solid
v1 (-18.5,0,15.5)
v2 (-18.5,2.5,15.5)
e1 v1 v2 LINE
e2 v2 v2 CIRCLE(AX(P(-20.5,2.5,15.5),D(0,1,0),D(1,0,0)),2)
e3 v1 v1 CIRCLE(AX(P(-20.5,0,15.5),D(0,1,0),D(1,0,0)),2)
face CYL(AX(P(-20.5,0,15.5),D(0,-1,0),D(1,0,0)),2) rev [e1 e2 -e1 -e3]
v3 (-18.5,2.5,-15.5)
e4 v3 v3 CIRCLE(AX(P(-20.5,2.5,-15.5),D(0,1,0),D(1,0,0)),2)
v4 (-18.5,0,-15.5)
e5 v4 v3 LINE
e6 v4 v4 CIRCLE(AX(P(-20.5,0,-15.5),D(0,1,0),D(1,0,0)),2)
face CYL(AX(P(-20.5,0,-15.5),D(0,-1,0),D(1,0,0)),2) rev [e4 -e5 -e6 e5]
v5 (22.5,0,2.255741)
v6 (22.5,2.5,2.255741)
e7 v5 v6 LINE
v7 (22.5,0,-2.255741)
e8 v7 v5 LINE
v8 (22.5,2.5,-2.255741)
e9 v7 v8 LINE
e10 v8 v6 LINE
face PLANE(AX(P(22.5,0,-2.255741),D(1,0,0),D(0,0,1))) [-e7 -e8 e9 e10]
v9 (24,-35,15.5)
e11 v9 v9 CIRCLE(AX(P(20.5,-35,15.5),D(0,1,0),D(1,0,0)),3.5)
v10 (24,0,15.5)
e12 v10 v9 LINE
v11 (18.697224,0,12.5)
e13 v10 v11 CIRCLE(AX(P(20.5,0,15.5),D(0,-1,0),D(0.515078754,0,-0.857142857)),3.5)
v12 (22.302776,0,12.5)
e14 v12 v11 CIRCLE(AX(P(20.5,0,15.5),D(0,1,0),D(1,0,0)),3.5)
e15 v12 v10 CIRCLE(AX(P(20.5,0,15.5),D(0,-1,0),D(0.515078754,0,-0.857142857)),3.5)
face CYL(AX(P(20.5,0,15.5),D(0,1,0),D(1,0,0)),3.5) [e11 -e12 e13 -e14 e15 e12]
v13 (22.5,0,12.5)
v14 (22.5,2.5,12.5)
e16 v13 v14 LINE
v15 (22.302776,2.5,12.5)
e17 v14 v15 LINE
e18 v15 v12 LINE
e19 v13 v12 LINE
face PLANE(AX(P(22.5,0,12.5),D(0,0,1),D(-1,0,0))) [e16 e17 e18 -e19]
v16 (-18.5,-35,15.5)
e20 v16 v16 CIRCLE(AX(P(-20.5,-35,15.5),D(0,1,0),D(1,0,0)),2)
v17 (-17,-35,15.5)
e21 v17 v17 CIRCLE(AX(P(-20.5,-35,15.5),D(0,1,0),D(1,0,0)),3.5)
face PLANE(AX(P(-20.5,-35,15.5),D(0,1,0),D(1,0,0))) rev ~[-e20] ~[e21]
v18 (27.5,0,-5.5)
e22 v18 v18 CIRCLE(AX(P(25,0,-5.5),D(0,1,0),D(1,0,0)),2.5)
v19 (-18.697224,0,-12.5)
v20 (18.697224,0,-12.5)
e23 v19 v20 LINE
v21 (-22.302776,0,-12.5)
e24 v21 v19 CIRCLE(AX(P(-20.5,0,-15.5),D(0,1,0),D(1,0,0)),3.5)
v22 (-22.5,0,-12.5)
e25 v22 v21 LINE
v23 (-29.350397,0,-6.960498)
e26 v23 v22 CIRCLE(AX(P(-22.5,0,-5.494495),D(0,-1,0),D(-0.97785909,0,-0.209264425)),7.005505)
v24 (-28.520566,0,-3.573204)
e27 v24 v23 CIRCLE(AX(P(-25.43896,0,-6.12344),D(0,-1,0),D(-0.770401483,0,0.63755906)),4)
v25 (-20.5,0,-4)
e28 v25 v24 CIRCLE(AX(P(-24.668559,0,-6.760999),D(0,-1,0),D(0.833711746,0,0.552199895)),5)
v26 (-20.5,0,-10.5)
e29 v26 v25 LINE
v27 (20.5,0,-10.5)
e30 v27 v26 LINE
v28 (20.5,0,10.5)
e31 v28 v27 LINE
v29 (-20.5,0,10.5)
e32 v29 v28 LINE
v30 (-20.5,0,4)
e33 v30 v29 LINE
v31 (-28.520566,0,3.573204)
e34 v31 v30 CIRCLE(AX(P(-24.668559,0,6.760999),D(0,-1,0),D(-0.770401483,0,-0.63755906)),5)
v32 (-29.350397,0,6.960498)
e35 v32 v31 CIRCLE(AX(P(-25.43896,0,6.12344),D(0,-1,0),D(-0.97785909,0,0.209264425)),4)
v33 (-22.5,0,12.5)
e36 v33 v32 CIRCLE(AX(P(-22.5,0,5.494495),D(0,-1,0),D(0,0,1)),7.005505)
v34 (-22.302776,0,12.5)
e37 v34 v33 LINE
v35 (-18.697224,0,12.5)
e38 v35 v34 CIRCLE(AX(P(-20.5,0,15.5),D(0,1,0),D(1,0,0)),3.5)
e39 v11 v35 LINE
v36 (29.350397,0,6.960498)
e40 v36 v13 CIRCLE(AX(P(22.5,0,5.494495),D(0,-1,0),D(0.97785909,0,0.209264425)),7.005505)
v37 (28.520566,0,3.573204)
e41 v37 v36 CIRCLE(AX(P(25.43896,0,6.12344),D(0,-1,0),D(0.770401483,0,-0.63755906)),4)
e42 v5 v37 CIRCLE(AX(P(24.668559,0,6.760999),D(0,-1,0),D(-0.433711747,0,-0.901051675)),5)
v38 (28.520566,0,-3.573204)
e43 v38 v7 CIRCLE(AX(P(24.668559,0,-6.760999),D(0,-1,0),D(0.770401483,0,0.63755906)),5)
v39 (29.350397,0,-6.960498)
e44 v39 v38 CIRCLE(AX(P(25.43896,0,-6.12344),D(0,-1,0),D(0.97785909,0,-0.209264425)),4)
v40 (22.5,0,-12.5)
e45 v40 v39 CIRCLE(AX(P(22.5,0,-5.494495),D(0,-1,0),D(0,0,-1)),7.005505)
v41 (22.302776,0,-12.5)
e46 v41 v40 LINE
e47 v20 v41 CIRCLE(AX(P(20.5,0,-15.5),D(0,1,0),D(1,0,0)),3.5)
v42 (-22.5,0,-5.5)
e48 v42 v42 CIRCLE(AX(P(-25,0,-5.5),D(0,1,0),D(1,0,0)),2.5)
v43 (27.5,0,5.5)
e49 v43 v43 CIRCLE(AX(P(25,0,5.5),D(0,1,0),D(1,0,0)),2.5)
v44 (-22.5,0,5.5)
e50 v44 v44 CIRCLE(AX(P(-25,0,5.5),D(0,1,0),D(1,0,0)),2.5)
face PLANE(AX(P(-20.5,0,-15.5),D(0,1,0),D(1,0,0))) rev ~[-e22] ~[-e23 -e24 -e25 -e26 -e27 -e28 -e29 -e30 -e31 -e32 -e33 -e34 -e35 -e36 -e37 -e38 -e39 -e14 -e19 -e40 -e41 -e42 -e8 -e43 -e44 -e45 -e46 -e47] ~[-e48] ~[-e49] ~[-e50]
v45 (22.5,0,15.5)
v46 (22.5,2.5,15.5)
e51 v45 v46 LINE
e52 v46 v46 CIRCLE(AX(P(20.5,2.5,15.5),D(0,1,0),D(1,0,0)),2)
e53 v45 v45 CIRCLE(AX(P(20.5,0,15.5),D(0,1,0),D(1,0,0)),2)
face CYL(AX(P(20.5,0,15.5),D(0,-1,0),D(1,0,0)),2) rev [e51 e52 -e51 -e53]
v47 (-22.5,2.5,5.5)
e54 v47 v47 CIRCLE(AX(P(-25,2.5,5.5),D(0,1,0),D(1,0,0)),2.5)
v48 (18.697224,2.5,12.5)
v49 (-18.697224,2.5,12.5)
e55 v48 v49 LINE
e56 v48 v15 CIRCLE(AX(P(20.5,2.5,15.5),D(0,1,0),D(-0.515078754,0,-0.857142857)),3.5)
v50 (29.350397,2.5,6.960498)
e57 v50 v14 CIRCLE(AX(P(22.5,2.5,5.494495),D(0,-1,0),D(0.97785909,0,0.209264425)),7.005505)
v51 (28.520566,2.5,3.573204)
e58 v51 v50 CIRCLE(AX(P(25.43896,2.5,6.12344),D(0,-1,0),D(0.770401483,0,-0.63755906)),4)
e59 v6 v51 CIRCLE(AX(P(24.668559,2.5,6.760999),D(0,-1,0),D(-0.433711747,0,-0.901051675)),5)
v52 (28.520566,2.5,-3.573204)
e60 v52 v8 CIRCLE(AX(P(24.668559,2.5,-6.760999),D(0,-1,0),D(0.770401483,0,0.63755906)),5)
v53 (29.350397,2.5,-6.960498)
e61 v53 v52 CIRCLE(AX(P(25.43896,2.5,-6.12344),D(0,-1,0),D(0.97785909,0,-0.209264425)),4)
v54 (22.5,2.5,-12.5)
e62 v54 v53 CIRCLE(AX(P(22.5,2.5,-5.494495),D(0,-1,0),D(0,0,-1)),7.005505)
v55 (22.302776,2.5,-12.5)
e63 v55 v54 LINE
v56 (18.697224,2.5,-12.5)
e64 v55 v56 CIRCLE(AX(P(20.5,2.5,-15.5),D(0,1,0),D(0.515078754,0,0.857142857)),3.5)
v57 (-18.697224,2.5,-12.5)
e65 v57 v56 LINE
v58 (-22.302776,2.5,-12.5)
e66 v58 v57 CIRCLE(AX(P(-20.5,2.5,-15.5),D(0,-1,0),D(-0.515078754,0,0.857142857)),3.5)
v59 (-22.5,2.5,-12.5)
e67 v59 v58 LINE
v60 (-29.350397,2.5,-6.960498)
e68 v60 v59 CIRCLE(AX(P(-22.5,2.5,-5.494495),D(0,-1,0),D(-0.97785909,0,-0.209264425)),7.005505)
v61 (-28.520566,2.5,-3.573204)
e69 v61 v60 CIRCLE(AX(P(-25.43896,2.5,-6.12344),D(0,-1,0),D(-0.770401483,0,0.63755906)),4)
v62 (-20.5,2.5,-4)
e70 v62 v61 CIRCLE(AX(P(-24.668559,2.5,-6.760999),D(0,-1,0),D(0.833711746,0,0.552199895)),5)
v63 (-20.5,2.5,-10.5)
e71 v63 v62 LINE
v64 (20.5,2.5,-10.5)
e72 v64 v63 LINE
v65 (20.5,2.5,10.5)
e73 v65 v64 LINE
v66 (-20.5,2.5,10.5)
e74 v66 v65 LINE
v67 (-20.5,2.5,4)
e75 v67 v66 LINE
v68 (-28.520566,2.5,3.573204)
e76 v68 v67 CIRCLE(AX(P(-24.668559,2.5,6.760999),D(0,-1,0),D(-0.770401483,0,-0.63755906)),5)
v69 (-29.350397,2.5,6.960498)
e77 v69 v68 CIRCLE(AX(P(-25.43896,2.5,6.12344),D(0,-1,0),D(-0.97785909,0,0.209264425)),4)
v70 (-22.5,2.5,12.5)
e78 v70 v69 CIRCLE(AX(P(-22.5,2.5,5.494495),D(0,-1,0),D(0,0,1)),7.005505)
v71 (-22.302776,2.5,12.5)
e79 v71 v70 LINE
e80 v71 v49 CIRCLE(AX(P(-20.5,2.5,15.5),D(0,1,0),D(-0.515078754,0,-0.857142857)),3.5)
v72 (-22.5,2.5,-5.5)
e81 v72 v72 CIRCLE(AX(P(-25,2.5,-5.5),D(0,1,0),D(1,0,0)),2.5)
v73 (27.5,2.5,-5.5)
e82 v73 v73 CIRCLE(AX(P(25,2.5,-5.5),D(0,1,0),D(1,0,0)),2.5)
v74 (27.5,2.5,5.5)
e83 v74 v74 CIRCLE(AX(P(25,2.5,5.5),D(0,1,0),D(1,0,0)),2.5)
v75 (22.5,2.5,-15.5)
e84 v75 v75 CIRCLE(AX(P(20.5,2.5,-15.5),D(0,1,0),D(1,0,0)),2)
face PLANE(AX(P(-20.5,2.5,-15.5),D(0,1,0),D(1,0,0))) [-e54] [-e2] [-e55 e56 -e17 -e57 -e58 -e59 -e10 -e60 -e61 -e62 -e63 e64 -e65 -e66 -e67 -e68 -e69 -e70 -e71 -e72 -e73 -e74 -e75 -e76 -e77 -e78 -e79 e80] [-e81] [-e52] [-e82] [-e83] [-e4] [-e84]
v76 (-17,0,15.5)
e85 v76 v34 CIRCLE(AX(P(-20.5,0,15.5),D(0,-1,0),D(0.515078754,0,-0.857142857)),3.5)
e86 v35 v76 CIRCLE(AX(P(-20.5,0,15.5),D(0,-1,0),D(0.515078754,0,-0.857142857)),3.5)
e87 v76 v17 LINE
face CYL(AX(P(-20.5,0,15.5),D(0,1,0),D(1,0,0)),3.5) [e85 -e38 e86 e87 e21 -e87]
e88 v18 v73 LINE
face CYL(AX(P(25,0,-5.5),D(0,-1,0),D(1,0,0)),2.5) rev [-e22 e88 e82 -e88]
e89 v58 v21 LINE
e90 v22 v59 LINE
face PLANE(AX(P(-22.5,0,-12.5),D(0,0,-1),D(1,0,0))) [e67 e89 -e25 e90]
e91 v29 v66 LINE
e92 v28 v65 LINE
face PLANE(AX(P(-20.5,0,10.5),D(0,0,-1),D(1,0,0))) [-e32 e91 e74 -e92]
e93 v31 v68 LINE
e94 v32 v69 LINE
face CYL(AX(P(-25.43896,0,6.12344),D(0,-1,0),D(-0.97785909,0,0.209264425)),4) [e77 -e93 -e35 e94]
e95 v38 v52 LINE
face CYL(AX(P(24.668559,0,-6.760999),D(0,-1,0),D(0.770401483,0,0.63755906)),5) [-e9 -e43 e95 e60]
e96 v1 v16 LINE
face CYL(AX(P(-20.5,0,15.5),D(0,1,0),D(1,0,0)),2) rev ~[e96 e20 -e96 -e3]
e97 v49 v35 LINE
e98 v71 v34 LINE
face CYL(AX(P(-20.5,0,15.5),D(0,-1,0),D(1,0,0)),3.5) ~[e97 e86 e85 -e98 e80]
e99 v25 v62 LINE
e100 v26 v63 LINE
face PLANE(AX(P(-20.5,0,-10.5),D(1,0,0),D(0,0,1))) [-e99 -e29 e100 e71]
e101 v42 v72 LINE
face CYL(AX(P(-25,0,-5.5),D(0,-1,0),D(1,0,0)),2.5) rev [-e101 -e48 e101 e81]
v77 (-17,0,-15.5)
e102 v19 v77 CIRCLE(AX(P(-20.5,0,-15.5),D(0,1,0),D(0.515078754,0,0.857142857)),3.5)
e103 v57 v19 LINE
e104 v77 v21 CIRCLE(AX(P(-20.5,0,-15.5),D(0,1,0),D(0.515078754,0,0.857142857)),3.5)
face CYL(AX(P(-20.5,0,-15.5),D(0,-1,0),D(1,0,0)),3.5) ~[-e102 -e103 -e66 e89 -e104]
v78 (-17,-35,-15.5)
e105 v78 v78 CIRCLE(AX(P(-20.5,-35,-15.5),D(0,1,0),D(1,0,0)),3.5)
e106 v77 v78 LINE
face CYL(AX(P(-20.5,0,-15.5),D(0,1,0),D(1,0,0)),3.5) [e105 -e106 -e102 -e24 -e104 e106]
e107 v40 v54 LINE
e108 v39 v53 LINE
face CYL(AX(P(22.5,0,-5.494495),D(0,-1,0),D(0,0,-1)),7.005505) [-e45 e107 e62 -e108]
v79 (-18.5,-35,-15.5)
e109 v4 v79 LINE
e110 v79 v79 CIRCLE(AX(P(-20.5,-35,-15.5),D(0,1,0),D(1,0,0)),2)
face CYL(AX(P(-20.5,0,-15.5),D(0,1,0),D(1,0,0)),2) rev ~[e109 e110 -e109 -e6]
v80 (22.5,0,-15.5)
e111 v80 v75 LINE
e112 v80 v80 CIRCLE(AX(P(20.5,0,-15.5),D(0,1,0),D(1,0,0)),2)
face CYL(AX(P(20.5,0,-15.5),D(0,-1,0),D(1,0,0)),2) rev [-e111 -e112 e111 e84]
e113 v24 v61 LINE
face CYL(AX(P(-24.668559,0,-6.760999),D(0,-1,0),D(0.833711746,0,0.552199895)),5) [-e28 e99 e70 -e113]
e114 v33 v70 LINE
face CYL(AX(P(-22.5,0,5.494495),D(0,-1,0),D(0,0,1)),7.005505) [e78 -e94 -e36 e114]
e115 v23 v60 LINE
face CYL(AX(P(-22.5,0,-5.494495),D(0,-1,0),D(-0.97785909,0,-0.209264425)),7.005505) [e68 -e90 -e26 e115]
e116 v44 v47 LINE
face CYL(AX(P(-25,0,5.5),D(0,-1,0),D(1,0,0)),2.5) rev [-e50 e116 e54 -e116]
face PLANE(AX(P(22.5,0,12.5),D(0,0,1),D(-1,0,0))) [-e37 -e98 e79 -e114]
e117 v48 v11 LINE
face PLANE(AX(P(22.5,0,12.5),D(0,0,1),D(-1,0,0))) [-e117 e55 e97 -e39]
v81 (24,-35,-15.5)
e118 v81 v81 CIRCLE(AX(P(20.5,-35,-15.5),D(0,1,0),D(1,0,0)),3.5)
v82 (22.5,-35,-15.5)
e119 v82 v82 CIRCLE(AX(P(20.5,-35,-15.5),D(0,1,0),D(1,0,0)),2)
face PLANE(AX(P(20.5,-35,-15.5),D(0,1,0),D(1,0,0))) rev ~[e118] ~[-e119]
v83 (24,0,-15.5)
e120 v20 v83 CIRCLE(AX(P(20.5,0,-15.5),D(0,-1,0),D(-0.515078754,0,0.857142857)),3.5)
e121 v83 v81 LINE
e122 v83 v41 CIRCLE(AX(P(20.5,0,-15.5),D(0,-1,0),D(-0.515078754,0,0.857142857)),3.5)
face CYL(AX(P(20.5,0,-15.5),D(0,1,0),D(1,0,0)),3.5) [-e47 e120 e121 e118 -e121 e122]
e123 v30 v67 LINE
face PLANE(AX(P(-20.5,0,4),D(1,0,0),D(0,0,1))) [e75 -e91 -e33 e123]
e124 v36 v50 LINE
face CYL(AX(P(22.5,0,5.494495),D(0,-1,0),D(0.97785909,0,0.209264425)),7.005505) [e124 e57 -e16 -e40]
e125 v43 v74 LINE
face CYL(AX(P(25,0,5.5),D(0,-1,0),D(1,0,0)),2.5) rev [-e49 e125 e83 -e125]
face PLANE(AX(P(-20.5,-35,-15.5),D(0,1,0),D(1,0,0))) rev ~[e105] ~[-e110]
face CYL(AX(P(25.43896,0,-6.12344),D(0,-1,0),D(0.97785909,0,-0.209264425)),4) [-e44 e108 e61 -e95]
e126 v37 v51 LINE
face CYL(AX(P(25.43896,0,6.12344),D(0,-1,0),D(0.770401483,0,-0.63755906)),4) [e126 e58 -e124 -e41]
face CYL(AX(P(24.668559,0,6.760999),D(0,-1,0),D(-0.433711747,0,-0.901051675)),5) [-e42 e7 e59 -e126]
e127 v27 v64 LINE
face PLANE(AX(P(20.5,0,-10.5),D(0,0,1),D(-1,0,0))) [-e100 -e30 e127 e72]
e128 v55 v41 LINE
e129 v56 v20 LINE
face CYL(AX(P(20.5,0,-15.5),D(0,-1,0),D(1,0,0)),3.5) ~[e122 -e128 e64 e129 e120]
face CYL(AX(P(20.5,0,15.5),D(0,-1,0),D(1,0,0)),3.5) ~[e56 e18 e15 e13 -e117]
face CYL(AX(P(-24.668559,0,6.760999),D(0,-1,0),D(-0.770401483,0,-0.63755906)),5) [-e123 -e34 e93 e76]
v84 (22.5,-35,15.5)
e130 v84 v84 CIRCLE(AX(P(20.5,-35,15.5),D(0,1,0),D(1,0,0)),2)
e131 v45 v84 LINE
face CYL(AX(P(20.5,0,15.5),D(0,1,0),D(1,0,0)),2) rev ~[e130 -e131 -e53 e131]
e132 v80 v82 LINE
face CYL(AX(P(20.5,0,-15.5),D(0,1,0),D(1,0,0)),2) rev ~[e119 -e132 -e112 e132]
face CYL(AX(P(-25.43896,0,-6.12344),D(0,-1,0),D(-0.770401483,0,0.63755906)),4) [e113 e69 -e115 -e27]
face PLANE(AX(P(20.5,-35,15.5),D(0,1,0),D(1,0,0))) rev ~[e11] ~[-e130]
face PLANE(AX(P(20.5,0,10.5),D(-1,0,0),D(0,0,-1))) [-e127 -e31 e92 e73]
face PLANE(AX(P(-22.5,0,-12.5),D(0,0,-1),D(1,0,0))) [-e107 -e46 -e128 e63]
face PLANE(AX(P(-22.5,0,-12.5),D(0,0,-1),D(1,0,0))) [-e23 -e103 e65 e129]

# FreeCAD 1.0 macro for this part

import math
import FreeCAD as App
import Part
import Sketcher
Q = App.Units.Quantity

doc = App.newDocument("Part")
body = doc.addObject("PartDesign::Body", "Body")

# Sketch on XZ plane
sketch1 = body.newObject("Sketcher::SketchObject", "Sketch")
sketch1.AttachmentSupport = (doc.getObject("XZ_Plane"), [""])
sketch1.MapMode = "FlatFace"
sketch1.addGeometry([
    Part.LineSegment(App.Vector(-20.5, -10.5, 0), App.Vector(20.5, -10.5, 0)),  # 0
    Part.LineSegment(App.Vector(20.5, -10.5, 0), App.Vector(20.5, 10.5, 0)),  # 1
    Part.LineSegment(App.Vector(20.5, 10.5, 0), App.Vector(-20.5, 10.5, 0)),  # 2
    Part.LineSegment(App.Vector(-20.5, 10.5, 0), App.Vector(-20.5, 4, 0)),  # 3
    Part.ArcOfCircle(Part.Circle(App.Vector(-24.668559, 6.760999, 0), App.Vector(0, 0, 1), 5), math.radians(-140.389955), math.radians(-33.518066)),  # 4
    Part.ArcOfCircle(Part.Circle(App.Vector(-25.43896, 6.12344, 0), App.Vector(0, 0, 1), 4), math.radians(167.920751), math.radians(219.610045)),  # 5
    Part.ArcOfCircle(Part.Circle(App.Vector(-22.5, 5.494495, 0), App.Vector(0, 0, 1), 7.005505), math.radians(90), math.radians(167.920751)),  # 6
    Part.LineSegment(App.Vector(-22.5, 12.5, 0), App.Vector(22.5, 12.5, 0)),  # 7
    Part.ArcOfCircle(Part.Circle(App.Vector(22.5, 5.494495, 0), App.Vector(0, 0, 1), 7.005505), math.radians(12.079249), math.radians(90)),  # 8
    Part.ArcOfCircle(Part.Circle(App.Vector(25.43896, 6.12344, 0), App.Vector(0, 0, 1), 4), math.radians(-39.610045), math.radians(12.079249)),  # 9
    Part.ArcOfCircle(Part.Circle(App.Vector(24.668559, 6.760999, 0), App.Vector(0, 0, 1), 5), math.radians(-115.703349), math.radians(-39.610045)),  # 10
    Part.LineSegment(App.Vector(22.5, 2.255741, 0), App.Vector(22.5, -2.255741, 0)),  # 11
    Part.ArcOfCircle(Part.Circle(App.Vector(24.668559, -6.760999, 0), App.Vector(0, 0, 1), 5), math.radians(39.610045), math.radians(115.703349)),  # 12
    Part.ArcOfCircle(Part.Circle(App.Vector(25.43896, -6.12344, 0), App.Vector(0, 0, 1), 4), math.radians(-12.079249), math.radians(39.610045)),  # 13
    Part.ArcOfCircle(Part.Circle(App.Vector(22.5, -5.494495, 0), App.Vector(0, 0, 1), 7.005505), math.radians(-90), math.radians(-12.079249)),  # 14
    Part.LineSegment(App.Vector(22.5, -12.5, 0), App.Vector(-22.5, -12.5, 0)),  # 15
    Part.ArcOfCircle(Part.Circle(App.Vector(-22.5, -5.494495, 0), App.Vector(0, 0, 1), 7.005505), math.radians(-167.920751), math.radians(-90)),  # 16
    Part.ArcOfCircle(Part.Circle(App.Vector(-25.43896, -6.12344, 0), App.Vector(0, 0, 1), 4), math.radians(140.389955), math.radians(192.079249)),  # 17
    Part.ArcOfCircle(Part.Circle(App.Vector(-24.668559, -6.760999, 0), App.Vector(0, 0, 1), 5), math.radians(33.518066), math.radians(140.389955)),  # 18
    Part.LineSegment(App.Vector(-20.5, -4, 0), App.Vector(-20.5, -10.5, 0)),  # 19
    Part.Circle(App.Vector(25, 5.5, 0), App.Vector(0, 0, 1), 2.5),  # 20
    Part.Circle(App.Vector(-25, 5.5, 0), App.Vector(0, 0, 1), 2.5),  # 21
    Part.Circle(App.Vector(25, -5.5, 0), App.Vector(0, 0, 1), 2.5),  # 22
    Part.Circle(App.Vector(-25, -5.5, 0), App.Vector(0, 0, 1), 2.5),  # 23
], False)
sketch1.addConstraint([
    Sketcher.Constraint("Coincident", 0, 2, 1, 1),
    Sketcher.Constraint("Coincident", 1, 2, 2, 1),
    Sketcher.Constraint("Coincident", 2, 2, 3, 1),
    Sketcher.Constraint("Coincident", 3, 2, 4, 2),
    Sketcher.Constraint("Tangent", 4, 1, 5, 2),
    Sketcher.Constraint("Tangent", 5, 1, 6, 2),
    Sketcher.Constraint("Tangent", 6, 1, 7, 1),
    Sketcher.Constraint("Tangent", 7, 2, 8, 2),
    Sketcher.Constraint("Tangent", 8, 1, 9, 2),
    Sketcher.Constraint("Tangent", 9, 1, 10, 2),
    Sketcher.Constraint("Coincident", 10, 1, 11, 1),
    Sketcher.Constraint("Coincident", 11, 2, 12, 2),
    Sketcher.Constraint("Tangent", 12, 1, 13, 2),
    Sketcher.Constraint("Tangent", 13, 1, 14, 2),
    Sketcher.Constraint("Tangent", 14, 1, 15, 1),
    Sketcher.Constraint("Tangent", 15, 2, 16, 2),
    Sketcher.Constraint("Tangent", 16, 1, 17, 2),
    Sketcher.Constraint("Tangent", 17, 1, 18, 2),
    Sketcher.Constraint("Coincident", 18, 1, 19, 1),
    Sketcher.Constraint("Coincident", 19, 2, 0, 1),
    Sketcher.Constraint("Horizontal", 0),
    Sketcher.Constraint("Vertical", 1),
    Sketcher.Constraint("Horizontal", 2),
    Sketcher.Constraint("Vertical", 3),
    Sketcher.Constraint("Horizontal", 7),
    Sketcher.Constraint("Vertical", 11),
    Sketcher.Constraint("Horizontal", 15),
    Sketcher.Constraint("Vertical", 19),
    Sketcher.Constraint("Equal", 6, 8),
    Sketcher.Constraint("Equal", 5, 9),
    Sketcher.Constraint("Equal", 4, 10),
    Sketcher.Constraint("Equal", 10, 12),
    Sketcher.Constraint("Equal", 9, 13),
    Sketcher.Constraint("Equal", 8, 14),
    Sketcher.Constraint("Equal", 14, 16),
    Sketcher.Constraint("Equal", 13, 17),
    Sketcher.Constraint("Equal", 12, 18),
    Sketcher.Constraint("Equal", 20, 21),
    Sketcher.Constraint("Equal", 21, 22),
    Sketcher.Constraint("Equal", 22, 23),
    Sketcher.Constraint("Symmetric", 4, 3, 12, 3, -1, 1),
    Sketcher.Constraint("Symmetric", 6, 3, 14, 3, -1, 1),
    Sketcher.Constraint("Symmetric", 9, 3, 17, 3, -1, 1),
    Sketcher.Constraint("Symmetric", 21, 3, 22, 3, -1, 1),
    Sketcher.Constraint("Symmetric", 20, 3, 23, 3, -1, 1),
    Sketcher.Constraint("Symmetric", 0, 2, 2, 2, -1, 1),
    Sketcher.Constraint("Symmetric", 5, 3, 9, 3, -2),
    Sketcher.Constraint("Symmetric", 20, 3, 21, 3, -2),
    Sketcher.Constraint("Symmetric", 3, 2, 18, 1, -1),
    Sketcher.Constraint("Horizontal", 4, 3, 10, 3),
    Sketcher.Constraint("Vertical", 7, 2, 10, 1),
    Sketcher.Constraint("Diameter", 20, Q("5 mm")),
    Sketcher.Constraint("Radius", 4, Q("5 mm")),
    Sketcher.Constraint("Radius", 5, Q("4 mm")),
    Sketcher.Constraint("DistanceX", 0, 1, 0, 2, Q("41 mm")),
    Sketcher.Constraint("DistanceX", 7, 1, 7, 2, Q("45 mm")),
    Sketcher.Constraint("DistanceY", 1, 1, 1, 2, Q("21 mm")),
    Sketcher.Constraint("DistanceY", 3, 2, 3, 1, Q("6.5 mm")),
    Sketcher.Constraint("DistanceX", -1, 1, 20, 3, Q("25 mm")),
    Sketcher.Constraint("DistanceY", 22, 3, 20, 3, Q("11 mm")),
    Sketcher.Constraint("DistanceY", 2, 2, 6, 1, Q("2 mm")),
    Sketcher.Constraint("DistanceY", -1, 1, 4, 3, Q("6.760999 mm")),
    Sketcher.Constraint("Radius", 6, Q("7.005505 mm")),
])
pad1 = body.newObject("PartDesign::Pad", "Pad")
pad1.Profile = sketch1
pad1.Length = 2.5
pad1.Reversed = True

# Sketch on XZ plane
sketch2 = body.newObject("Sketcher::SketchObject", "Sketch001")
sketch2.AttachmentSupport = (doc.getObject("XZ_Plane"), [""])
sketch2.MapMode = "FlatFace"
sketch2.addGeometry([
    Part.Circle(App.Vector(-20.5, -15.5, 0), App.Vector(0, 0, 1), 3.5),  # 0
    Part.Circle(App.Vector(-20.5, -15.5, 0), App.Vector(0, 0, 1), 2),  # 1
    Part.Circle(App.Vector(20.5, -15.5, 0), App.Vector(0, 0, 1), 3.5),  # 2
    Part.Circle(App.Vector(20.5, -15.5, 0), App.Vector(0, 0, 1), 2),  # 3
    Part.Circle(App.Vector(-20.5, 15.5, 0), App.Vector(0, 0, 1), 3.5),  # 4
    Part.Circle(App.Vector(-20.5, 15.5, 0), App.Vector(0, 0, 1), 2),  # 5
    Part.Circle(App.Vector(20.5, 15.5, 0), App.Vector(0, 0, 1), 3.5),  # 6
    Part.Circle(App.Vector(20.5, 15.5, 0), App.Vector(0, 0, 1), 2),  # 7
], False)
sketch2.addConstraint([
    Sketcher.Constraint("Coincident", 1, 3, 0, 3),
    Sketcher.Constraint("Coincident", 3, 3, 2, 3),
    Sketcher.Constraint("Coincident", 5, 3, 4, 3),
    Sketcher.Constraint("Coincident", 7, 3, 6, 3),
    Sketcher.Constraint("Equal", 0, 2),
    Sketcher.Constraint("Equal", 1, 3),
    Sketcher.Constraint("Equal", 2, 4),
    Sketcher.Constraint("Equal", 3, 5),
    Sketcher.Constraint("Equal", 4, 6),
    Sketcher.Constraint("Equal", 5, 7),
    Sketcher.Constraint("Symmetric", 2, 3, 4, 3, -1, 1),
    Sketcher.Constraint("Symmetric", 0, 3, 6, 3, -1, 1),
    Sketcher.Constraint("Symmetric", 0, 3, 2, 3, -2),
    Sketcher.Constraint("Diameter", 0, Q("7 mm")),
    Sketcher.Constraint("Diameter", 1, Q("4 mm")),
    Sketcher.Constraint("DistanceX", 0, 3, 2, 3, Q("41 mm")),
    Sketcher.Constraint("DistanceY", 0, 3, 4, 3, Q("31 mm")),
])
pad2 = body.newObject("PartDesign::Pad", "Pad001")
pad2.Profile = sketch2
pad2.Type = "TwoLengths"
pad2.Length = 2.5
pad2.Length2 = 35
pad2.Reversed = True

doc.recompute()
